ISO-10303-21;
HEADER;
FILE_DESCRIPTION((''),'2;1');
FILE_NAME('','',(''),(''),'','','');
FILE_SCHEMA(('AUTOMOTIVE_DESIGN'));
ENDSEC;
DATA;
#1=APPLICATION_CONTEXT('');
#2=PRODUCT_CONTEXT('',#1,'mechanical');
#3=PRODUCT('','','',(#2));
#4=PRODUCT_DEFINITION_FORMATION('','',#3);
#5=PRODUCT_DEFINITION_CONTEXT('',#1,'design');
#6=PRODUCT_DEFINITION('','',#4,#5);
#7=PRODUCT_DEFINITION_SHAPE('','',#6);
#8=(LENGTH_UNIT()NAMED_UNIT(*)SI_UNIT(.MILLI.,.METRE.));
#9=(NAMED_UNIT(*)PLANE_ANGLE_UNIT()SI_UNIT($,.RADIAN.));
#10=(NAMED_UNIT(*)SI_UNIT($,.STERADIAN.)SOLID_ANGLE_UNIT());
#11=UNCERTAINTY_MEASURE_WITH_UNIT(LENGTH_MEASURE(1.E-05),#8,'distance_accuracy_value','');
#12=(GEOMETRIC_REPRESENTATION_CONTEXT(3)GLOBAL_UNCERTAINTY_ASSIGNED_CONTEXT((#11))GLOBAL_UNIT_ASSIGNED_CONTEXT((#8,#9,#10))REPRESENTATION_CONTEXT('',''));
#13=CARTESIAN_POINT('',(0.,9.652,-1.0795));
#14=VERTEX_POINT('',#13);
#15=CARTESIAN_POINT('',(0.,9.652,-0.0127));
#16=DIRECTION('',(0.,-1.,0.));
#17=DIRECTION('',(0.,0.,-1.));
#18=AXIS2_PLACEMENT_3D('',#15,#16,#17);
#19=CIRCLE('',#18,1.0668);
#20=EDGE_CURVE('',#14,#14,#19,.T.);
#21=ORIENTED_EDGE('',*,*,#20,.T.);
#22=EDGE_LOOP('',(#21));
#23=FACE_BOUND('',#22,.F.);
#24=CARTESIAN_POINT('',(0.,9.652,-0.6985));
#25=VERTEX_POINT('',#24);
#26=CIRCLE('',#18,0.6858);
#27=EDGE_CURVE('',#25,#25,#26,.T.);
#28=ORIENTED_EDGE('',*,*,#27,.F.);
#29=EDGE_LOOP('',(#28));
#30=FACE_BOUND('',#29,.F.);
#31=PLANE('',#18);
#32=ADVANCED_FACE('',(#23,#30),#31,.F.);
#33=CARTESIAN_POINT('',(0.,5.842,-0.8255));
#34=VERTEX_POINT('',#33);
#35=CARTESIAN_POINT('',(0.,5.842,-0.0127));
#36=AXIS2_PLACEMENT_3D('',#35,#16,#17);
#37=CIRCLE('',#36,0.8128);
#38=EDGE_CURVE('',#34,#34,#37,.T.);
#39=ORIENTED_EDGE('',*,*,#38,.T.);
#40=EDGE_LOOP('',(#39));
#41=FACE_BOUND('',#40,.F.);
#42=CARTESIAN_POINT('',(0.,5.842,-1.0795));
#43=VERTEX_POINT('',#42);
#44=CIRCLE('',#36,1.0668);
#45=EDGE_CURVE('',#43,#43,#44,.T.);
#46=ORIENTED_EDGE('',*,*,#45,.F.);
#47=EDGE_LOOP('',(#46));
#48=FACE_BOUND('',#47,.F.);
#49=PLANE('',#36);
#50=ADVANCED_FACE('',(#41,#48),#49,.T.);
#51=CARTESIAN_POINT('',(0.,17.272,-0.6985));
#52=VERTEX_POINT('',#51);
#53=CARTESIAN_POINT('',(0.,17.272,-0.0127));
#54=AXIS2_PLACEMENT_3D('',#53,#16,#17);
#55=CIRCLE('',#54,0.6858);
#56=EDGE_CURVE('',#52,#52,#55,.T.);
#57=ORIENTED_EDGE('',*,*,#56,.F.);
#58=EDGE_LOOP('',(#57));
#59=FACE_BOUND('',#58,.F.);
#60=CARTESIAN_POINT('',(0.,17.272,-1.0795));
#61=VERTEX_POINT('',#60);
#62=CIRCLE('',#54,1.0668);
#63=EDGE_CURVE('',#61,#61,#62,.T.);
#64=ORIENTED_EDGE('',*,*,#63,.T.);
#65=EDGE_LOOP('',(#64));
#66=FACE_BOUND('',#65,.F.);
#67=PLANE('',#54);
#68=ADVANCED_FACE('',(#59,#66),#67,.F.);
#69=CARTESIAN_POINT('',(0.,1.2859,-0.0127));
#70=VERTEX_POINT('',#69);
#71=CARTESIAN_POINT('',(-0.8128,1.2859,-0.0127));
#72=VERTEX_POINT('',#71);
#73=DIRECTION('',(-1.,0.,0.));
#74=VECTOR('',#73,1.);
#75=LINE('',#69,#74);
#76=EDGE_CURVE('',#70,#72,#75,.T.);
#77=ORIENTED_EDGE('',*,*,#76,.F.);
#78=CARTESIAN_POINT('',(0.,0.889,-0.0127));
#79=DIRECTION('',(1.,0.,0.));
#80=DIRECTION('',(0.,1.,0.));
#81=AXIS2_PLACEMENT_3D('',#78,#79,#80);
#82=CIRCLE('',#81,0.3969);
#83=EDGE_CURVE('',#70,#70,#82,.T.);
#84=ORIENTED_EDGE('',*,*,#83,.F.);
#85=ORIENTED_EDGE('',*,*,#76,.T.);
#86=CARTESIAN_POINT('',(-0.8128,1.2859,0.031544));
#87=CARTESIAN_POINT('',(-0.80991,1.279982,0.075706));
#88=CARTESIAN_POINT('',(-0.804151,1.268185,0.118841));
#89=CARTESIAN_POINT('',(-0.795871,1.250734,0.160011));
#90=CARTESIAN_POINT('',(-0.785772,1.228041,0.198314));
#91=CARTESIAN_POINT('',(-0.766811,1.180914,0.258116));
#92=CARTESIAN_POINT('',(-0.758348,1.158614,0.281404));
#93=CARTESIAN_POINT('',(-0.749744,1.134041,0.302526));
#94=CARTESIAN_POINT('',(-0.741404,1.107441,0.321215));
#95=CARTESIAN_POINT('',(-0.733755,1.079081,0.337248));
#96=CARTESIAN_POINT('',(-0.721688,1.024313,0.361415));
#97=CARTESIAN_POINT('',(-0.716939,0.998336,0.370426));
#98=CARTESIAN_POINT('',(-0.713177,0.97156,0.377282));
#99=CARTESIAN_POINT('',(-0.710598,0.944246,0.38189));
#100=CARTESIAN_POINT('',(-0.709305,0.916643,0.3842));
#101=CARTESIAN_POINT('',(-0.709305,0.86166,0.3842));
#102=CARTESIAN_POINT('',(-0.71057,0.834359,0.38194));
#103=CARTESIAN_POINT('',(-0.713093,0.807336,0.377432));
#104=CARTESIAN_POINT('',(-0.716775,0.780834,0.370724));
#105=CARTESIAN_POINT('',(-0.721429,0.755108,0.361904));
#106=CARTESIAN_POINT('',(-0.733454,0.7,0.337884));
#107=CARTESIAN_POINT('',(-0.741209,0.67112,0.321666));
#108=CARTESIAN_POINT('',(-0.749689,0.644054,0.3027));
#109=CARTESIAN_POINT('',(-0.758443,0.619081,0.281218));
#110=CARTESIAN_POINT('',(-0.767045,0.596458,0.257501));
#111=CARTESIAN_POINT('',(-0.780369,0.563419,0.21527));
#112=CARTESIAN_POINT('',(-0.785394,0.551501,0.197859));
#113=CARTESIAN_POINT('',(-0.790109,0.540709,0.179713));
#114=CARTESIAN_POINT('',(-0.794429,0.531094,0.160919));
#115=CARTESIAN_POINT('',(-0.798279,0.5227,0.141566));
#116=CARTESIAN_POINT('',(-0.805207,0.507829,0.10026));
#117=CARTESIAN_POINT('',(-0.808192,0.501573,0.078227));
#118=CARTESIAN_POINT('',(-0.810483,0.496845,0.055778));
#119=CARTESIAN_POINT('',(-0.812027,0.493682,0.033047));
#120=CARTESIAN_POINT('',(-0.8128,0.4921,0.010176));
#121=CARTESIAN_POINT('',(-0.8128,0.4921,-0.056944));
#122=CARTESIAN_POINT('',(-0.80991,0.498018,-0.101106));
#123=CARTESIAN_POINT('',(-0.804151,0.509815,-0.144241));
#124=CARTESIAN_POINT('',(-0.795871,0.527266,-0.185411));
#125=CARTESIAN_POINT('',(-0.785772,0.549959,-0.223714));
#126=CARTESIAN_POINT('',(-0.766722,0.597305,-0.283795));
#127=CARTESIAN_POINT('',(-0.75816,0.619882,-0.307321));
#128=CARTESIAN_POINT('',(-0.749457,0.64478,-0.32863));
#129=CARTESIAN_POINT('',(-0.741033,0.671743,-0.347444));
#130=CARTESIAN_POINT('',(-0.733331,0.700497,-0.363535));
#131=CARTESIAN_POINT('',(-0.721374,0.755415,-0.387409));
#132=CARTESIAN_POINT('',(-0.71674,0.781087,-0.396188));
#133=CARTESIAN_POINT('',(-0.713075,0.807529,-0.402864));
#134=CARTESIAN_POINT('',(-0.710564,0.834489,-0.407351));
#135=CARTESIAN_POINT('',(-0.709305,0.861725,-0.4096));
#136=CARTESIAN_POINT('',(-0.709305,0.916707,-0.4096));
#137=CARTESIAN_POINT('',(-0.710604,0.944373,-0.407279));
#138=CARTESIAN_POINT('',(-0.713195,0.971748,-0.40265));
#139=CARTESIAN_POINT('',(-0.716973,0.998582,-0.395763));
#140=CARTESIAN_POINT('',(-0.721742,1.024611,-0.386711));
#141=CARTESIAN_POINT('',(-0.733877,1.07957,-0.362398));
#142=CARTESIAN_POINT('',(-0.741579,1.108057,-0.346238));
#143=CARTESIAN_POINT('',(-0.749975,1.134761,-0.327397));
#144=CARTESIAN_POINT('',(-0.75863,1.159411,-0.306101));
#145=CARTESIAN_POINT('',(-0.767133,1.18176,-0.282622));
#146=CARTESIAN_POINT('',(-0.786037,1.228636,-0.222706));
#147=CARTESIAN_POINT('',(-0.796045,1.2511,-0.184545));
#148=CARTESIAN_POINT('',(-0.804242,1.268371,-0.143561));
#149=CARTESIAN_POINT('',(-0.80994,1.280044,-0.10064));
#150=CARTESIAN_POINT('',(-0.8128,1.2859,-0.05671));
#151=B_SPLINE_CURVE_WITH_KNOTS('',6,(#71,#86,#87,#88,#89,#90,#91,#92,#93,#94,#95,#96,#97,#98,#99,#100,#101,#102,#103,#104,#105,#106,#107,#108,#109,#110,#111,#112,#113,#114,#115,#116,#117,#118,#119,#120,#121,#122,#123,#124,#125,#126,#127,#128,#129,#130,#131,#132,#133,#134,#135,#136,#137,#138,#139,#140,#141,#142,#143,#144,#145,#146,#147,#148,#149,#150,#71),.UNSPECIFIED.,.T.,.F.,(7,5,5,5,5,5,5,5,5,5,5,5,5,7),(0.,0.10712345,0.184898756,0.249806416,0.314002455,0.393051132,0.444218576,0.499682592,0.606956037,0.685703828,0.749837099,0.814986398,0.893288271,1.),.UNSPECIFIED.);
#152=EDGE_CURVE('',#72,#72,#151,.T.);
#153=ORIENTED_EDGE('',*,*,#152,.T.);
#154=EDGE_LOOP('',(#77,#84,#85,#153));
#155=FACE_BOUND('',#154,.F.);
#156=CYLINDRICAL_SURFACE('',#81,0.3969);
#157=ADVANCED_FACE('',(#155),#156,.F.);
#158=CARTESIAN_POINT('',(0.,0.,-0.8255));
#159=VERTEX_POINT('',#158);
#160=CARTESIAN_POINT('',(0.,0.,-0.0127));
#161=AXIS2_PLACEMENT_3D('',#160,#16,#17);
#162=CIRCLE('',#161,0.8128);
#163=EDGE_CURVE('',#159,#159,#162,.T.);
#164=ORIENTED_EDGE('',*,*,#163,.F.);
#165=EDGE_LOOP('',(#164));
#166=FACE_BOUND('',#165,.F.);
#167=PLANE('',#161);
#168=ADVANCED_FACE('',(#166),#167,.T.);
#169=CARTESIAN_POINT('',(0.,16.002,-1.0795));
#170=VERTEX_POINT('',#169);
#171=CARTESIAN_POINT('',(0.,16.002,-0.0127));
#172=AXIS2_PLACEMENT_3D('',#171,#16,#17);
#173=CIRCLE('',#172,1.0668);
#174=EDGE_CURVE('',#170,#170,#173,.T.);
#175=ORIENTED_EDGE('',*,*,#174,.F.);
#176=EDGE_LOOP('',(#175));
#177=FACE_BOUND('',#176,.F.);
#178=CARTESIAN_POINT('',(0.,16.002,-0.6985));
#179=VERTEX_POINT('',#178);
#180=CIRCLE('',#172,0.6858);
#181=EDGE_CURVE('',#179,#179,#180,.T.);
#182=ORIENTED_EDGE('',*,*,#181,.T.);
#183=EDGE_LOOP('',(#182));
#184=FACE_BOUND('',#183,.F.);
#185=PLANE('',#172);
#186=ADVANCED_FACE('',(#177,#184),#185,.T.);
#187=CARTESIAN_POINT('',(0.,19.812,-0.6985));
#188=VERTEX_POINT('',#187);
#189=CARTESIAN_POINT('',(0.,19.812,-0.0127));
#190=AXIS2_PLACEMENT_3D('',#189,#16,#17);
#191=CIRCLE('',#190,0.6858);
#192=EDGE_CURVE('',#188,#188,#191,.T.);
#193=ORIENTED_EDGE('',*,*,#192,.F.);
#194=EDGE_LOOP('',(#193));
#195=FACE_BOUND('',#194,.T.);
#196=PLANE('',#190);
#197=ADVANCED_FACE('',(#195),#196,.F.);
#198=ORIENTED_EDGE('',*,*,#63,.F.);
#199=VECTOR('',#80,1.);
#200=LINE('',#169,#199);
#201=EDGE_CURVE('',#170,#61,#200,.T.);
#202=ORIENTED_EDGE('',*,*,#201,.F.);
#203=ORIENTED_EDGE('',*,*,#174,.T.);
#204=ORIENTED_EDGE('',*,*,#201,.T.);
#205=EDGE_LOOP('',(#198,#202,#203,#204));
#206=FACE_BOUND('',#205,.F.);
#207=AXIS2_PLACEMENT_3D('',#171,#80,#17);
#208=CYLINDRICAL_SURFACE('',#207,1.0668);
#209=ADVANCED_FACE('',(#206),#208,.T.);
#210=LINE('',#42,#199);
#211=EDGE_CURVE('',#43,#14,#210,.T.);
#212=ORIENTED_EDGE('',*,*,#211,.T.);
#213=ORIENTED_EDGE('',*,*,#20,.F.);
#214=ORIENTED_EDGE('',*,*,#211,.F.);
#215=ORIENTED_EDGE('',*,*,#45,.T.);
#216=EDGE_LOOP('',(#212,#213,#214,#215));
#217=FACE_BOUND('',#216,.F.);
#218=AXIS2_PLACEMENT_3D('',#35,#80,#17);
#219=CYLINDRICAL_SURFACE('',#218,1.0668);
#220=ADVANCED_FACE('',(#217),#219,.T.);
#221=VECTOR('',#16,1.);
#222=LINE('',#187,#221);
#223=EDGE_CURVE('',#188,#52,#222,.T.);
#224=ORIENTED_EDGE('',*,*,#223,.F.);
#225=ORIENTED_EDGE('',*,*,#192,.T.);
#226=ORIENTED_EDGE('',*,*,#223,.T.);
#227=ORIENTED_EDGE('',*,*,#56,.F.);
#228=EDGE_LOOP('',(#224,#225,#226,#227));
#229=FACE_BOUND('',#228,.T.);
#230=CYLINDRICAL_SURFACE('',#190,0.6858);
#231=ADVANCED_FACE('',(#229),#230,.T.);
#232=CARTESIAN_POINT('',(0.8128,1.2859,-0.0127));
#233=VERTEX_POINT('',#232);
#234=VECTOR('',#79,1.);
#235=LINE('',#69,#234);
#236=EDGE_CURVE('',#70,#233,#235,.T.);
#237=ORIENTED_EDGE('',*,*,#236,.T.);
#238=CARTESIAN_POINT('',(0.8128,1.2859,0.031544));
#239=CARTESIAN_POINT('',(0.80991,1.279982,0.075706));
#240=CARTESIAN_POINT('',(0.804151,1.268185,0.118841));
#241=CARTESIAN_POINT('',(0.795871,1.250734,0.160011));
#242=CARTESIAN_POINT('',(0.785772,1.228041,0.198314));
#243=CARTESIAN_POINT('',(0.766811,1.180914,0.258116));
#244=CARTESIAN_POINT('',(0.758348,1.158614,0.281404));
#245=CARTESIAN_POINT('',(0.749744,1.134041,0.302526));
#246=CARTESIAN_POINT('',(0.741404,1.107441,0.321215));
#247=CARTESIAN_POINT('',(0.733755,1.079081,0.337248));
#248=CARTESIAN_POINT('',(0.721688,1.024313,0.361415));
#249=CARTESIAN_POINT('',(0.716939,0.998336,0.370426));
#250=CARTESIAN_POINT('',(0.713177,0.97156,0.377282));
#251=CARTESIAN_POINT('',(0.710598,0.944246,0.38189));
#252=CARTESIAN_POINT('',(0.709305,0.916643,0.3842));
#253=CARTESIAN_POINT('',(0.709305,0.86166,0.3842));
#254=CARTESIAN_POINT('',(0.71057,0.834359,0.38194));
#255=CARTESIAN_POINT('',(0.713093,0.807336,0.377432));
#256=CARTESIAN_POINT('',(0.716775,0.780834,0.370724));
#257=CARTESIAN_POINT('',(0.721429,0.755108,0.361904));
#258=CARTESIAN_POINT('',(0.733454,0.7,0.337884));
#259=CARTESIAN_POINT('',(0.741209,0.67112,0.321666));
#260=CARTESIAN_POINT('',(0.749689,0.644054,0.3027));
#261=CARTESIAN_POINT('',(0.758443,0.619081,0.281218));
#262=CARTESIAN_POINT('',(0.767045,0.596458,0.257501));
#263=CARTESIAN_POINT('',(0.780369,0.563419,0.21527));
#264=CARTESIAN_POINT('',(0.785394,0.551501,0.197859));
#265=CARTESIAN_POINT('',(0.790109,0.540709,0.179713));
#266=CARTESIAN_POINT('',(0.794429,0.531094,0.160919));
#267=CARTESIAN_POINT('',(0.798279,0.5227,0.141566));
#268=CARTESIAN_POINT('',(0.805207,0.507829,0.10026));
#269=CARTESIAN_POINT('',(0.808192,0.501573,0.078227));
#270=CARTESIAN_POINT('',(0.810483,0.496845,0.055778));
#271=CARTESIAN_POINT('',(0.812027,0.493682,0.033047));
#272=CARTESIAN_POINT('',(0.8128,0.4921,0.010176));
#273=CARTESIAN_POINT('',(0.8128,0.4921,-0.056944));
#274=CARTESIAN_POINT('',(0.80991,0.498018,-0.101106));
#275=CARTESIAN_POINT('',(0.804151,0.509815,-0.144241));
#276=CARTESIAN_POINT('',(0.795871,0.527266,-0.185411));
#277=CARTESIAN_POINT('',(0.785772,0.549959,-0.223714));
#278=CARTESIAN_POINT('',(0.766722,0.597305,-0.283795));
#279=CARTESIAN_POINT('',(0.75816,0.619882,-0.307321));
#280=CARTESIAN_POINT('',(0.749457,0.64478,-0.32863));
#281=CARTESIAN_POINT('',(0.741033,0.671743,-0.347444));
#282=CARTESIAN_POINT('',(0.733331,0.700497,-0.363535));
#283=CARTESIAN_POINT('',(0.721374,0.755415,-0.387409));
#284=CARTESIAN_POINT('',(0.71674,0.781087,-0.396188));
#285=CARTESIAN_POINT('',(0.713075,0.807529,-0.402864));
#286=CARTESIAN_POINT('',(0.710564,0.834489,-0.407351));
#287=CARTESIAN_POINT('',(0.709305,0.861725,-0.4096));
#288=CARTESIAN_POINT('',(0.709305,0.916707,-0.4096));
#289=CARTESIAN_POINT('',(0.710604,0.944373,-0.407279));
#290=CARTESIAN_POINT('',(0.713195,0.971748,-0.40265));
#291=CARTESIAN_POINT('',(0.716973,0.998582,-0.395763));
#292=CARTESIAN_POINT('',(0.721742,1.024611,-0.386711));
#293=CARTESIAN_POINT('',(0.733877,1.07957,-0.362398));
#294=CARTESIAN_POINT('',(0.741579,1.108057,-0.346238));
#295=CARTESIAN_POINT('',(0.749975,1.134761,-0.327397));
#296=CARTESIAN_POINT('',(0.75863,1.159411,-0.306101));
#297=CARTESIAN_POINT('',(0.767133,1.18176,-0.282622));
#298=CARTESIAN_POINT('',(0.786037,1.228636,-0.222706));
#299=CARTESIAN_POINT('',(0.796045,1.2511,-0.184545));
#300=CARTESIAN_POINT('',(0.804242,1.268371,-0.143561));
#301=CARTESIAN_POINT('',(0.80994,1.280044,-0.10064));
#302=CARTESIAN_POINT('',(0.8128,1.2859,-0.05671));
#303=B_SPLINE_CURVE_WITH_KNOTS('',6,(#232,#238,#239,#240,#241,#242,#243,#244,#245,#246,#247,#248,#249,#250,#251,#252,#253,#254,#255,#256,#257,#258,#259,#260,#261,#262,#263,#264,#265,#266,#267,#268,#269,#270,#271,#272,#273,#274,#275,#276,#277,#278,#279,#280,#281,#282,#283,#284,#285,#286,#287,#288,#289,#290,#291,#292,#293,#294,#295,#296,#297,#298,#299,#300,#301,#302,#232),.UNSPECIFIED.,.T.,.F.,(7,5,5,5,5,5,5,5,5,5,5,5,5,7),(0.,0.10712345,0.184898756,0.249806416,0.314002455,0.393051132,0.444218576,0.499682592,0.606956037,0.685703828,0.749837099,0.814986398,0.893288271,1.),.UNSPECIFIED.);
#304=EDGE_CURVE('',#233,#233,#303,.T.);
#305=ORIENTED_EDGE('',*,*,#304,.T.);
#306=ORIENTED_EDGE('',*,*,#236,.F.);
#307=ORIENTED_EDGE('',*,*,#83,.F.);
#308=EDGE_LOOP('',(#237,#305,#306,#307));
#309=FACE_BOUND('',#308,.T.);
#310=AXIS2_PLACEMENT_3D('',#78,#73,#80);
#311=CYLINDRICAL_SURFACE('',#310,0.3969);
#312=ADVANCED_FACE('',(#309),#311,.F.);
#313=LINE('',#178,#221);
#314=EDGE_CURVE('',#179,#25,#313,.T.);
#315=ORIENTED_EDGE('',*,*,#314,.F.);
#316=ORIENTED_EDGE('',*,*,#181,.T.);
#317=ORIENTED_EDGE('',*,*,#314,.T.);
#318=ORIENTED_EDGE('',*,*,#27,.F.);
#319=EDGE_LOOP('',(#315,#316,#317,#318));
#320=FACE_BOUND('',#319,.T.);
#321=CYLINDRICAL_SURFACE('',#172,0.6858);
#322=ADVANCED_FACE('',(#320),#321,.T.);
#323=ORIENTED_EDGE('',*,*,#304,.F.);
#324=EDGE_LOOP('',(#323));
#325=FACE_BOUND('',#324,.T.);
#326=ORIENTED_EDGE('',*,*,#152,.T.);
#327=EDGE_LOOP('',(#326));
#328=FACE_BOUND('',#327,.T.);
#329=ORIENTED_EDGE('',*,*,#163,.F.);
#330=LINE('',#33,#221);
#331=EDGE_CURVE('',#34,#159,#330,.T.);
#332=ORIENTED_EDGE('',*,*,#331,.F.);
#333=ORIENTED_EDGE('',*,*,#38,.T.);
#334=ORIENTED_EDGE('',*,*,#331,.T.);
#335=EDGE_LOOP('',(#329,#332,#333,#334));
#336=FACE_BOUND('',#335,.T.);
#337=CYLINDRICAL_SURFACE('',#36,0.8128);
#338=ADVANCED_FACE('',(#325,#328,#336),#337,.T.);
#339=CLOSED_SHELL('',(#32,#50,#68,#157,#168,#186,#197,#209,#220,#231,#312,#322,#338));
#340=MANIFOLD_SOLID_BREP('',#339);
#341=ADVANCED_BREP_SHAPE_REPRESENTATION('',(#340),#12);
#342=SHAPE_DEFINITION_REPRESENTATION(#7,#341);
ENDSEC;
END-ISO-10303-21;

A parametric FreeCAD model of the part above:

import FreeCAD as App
import Part
import Sketcher

V = App.Vector
Q = App.Units.Quantity

doc = App.newDocument("Part")
body = doc.addObject("PartDesign::Body", "Body")

sketch1 = body.newObject("Sketcher::SketchObject", "Sketch")
sketch1.AttachmentSupport = (doc.getObject("YZ_Plane"), [""])
sketch1.MapMode = "FlatFace"
sketch1.addGeometry(Part.LineSegment(V(19.812, -0.6985, 0), V(19.812, -0.0127, 0)), False)
sketch1.addGeometry(Part.LineSegment(V(19.812, -0.0127, 0), V(0, -0.0127, 0)), False)
sketch1.addGeometry(Part.LineSegment(V(0, -0.0127, 0), V(0, -0.8255, 0)), False)
sketch1.addGeometry(Part.LineSegment(V(0, -0.8255, 0), V(5.842, -0.8255, 0)), False)
sketch1.addGeometry(Part.LineSegment(V(5.842, -0.8255, 0), V(5.842, -1.0795, 0)), False)
sketch1.addGeometry(Part.LineSegment(V(5.842, -1.0795, 0), V(9.652, -1.0795, 0)), False)
sketch1.addGeometry(Part.LineSegment(V(9.652, -1.0795, 0), V(9.652, -0.6985, 0)), False)
sketch1.addGeometry(Part.LineSegment(V(9.652, -0.6985, 0), V(16.002, -0.6985, 0)), False)
sketch1.addGeometry(Part.LineSegment(V(16.002, -0.6985, 0), V(16.002, -1.0795, 0)), False)
sketch1.addGeometry(Part.LineSegment(V(16.002, -1.0795, 0), V(17.272, -1.0795, 0)), False)
sketch1.addGeometry(Part.LineSegment(V(17.272, -1.0795, 0), V(17.272, -0.6985, 0)), False)
sketch1.addGeometry(Part.LineSegment(V(17.272, -0.6985, 0), V(19.812, -0.6985, 0)), False)
sketch1.addGeometry(Part.LineSegment(V(19.812, -0.0127, 0), V(0, -0.0127, 0)), True)
sketch1.addConstraint(Sketcher.Constraint("Coincident", 0, 2, 1, 1))
sketch1.addConstraint(Sketcher.Constraint("Coincident", 1, 2, 2, 1))
sketch1.addConstraint(Sketcher.Constraint("Coincident", 2, 2, 3, 1))
sketch1.addConstraint(Sketcher.Constraint("Coincident", 3, 2, 4, 1))
sketch1.addConstraint(Sketcher.Constraint("Coincident", 4, 2, 5, 1))
sketch1.addConstraint(Sketcher.Constraint("Coincident", 5, 2, 6, 1))
sketch1.addConstraint(Sketcher.Constraint("Coincident", 6, 2, 7, 1))
sketch1.addConstraint(Sketcher.Constraint("Coincident", 7, 2, 8, 1))
sketch1.addConstraint(Sketcher.Constraint("Coincident", 8, 2, 9, 1))
sketch1.addConstraint(Sketcher.Constraint("Coincident", 9, 2, 10, 1))
sketch1.addConstraint(Sketcher.Constraint("Coincident", 10, 2, 11, 1))
sketch1.addConstraint(Sketcher.Constraint("Coincident", 11, 2, 0, 1))
sketch1.addConstraint(Sketcher.Constraint("Vertical", 0))
sketch1.addConstraint(Sketcher.Constraint("Horizontal", 1))
sketch1.addConstraint(Sketcher.Constraint("Vertical", 2))
sketch1.addConstraint(Sketcher.Constraint("Horizontal", 3))
sketch1.addConstraint(Sketcher.Constraint("Vertical", 4))
sketch1.addConstraint(Sketcher.Constraint("Horizontal", 5))
sketch1.addConstraint(Sketcher.Constraint("Vertical", 6))
sketch1.addConstraint(Sketcher.Constraint("Horizontal", 7))
sketch1.addConstraint(Sketcher.Constraint("Vertical", 8))
sketch1.addConstraint(Sketcher.Constraint("Horizontal", 9))
sketch1.addConstraint(Sketcher.Constraint("Vertical", 10))
sketch1.addConstraint(Sketcher.Constraint("Horizontal", 11))
sketch1.addConstraint(Sketcher.Constraint("Horizontal", 12))
sketch1.addConstraint(Sketcher.Constraint("Coincident", 12, 1, 0, 2))
sketch1.addConstraint(Sketcher.Constraint("PointOnObject", 1, 2, -2))
sketch1.addConstraint(Sketcher.Constraint("PointOnObject", 12, 2, -2))
sketch1.addConstraint(Sketcher.Constraint("Horizontal", 5, 2, 8, 2))
sketch1.addConstraint(Sketcher.Constraint("Horizontal", 7, 2, 10, 2))
sketch1.addConstraint(Sketcher.Constraint("DistanceX", 11, 1, 11, 2, Q("0.1 in")))
sketch1.addConstraint(Sketcher.Constraint("DistanceX", 3, 1, 3, 2, Q("0.23 in")))
sketch1.addConstraint(Sketcher.Constraint("DistanceX", 5, 1, 5, 2, Q("0.15 in")))
sketch1.addConstraint(Sketcher.Constraint("DistanceX", 7, 1, 7, 2, Q("0.25 in")))
sketch1.addConstraint(Sketcher.Constraint("DistanceX", 9, 1, 9, 2, Q("0.05 in")))
sketch1.addConstraint(Sketcher.Constraint("DistanceY", 0, 1, 0, 2, Q("0.027 in")))
sketch1.addConstraint(Sketcher.Constraint("DistanceY", 2, 2, 2, 1, Q("0.032 in")))
sketch1.addConstraint(Sketcher.Constraint("DistanceY", 4, 2, 1, 2, Q("0.042 in")))
sketch1.addConstraint(Sketcher.Constraint("DistanceY", 0, 2, -1, 1, Q("0.0005 in")))
revolution = body.newObject("PartDesign::Revolution", "Revolution")
revolution.Profile = sketch1
revolution.ReferenceAxis = (sketch1, ["Axis0"])
revolution.Angle = 360

sketch2 = body.newObject("Sketcher::SketchObject", "Sketch001")
sketch2.AttachmentSupport = (doc.getObject("YZ_Plane"), [""])
sketch2.MapMode = "FlatFace"
sketch2.addGeometry(Part.Circle(V(0.889, -0.0127, 0), V(0, 0, 1), 0.3969), False)
sketch2.addConstraint(Sketcher.Constraint("Diameter", 0, Q("0.031252 in")))
sketch2.addConstraint(Sketcher.Constraint("DistanceX", -1, 1, 0, 3, Q("0.035 in")))
sketch2.addConstraint(Sketcher.Constraint("DistanceY", 0, 3, -1, 1, Q("0.0005 in")))
pocket1 = body.newObject("PartDesign::Pocket", "Pocket")
pocket1.Profile = sketch2
pocket1.Length = Q("1 in")
pocket1.Midplane = True

doc.recompute()
